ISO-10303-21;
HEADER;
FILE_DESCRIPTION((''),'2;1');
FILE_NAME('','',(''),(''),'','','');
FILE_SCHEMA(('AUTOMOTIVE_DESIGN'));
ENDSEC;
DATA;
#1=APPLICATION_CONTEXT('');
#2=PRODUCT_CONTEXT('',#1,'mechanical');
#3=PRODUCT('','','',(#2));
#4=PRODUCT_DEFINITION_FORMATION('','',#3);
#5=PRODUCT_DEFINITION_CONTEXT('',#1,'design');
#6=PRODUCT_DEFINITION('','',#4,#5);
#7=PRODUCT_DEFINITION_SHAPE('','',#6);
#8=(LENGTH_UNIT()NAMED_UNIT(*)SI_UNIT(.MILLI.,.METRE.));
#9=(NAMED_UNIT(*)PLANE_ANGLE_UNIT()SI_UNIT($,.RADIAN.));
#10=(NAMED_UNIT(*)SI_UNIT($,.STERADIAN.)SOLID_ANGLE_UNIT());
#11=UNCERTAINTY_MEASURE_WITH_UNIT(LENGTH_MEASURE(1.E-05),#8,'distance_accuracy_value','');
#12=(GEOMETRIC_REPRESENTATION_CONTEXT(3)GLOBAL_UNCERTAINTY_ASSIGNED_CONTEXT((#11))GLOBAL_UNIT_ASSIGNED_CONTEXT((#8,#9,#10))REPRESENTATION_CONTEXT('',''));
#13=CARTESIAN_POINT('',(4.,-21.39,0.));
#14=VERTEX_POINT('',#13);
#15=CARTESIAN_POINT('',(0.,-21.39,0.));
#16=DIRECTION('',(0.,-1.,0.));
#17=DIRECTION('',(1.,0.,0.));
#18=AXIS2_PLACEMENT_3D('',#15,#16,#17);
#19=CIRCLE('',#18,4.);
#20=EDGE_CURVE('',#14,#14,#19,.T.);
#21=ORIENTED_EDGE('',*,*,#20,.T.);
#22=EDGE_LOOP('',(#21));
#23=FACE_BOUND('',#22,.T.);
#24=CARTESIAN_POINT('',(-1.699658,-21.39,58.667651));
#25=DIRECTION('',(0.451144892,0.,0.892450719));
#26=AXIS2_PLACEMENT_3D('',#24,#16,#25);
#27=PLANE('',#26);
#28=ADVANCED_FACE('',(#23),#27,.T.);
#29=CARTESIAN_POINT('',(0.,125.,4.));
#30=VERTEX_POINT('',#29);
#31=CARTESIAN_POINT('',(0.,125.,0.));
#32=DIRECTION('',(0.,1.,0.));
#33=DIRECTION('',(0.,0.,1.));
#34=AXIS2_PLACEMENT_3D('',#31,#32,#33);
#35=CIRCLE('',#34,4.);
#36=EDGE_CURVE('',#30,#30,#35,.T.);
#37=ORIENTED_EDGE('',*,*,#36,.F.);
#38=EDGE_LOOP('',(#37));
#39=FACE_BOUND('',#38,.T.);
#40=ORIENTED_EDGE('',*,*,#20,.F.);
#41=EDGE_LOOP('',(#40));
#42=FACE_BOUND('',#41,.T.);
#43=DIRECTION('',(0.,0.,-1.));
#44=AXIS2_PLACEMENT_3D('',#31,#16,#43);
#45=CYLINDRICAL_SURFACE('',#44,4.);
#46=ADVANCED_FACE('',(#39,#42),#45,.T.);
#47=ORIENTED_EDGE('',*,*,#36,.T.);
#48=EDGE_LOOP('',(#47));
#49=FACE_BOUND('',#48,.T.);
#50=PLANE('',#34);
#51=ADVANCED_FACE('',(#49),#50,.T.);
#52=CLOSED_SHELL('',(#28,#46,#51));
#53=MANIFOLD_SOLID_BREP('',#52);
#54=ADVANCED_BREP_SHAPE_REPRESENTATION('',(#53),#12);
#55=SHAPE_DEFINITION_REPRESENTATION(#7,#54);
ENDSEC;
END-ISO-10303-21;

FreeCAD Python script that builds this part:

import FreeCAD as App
import Part
import Sketcher

doc = App.newDocument("Part")
params = doc.addObject("Spreadsheet::Sheet", "Params")
for row, (alias, value) in enumerate([
    ("sketch1_diameter", "8 mm"),
    ("pad1_length", "125 mm"),
    ("sketch2_diameter", "8 mm"),
    ("pad2_length", "21.39 mm"),
], start=1):
    params.set(f"A{row}", alias)
    params.set(f"B{row}", "=" + value)
    params.setAlias(f"B{row}", alias)

body = doc.addObject("PartDesign::Body", "Body")

sketch1 = body.newObject("Sketcher::SketchObject", "Sketch")
sketch1.AttachmentSupport = (doc.getObject("XZ_Plane"), [""])
sketch1.MapMode = "FlatFace"
sketch1.addGeometry(Part.Circle(App.Vector(0, 0, 0), App.Vector(0, 0, 1), 4), False)
sketch1.addConstraint([
    Sketcher.Constraint("Coincident", 0, 3, -1, 1),
    Sketcher.Constraint("Diameter", 0, 8.0),
])
sketch1.setExpression("Constraints[1]", "Params.sketch1_diameter")
pad1 = body.newObject("PartDesign::Pad", "Pad")
pad1.Profile = sketch1
pad1.setExpression("Length", "Params.pad1_length")
pad1.Reversed = True

sketch2 = body.newObject("Sketcher::SketchObject", "Sketch001")
sketch2.AttachmentSupport = (doc.getObject("XZ_Plane"), [""])
sketch2.MapMode = "FlatFace"
sketch2.AttachmentOffset = App.Placement(App.Vector(0, 0, 21.39), App.Rotation())
sketch2.addGeometry(Part.Circle(App.Vector(0, 0, 0), App.Vector(0, 0, 1), 4), False)
sketch2.addConstraint([
    Sketcher.Constraint("Coincident", 0, 3, -1, 1),
    Sketcher.Constraint("Diameter", 0, 8.0),
])
sketch2.setExpression("Constraints[1]", "Params.sketch2_diameter")
pad2 = body.newObject("PartDesign::Pad", "Pad001")
pad2.Profile = sketch2
pad2.setExpression("Length", "Params.pad2_length")
pad2.Reversed = True

doc.recompute()
